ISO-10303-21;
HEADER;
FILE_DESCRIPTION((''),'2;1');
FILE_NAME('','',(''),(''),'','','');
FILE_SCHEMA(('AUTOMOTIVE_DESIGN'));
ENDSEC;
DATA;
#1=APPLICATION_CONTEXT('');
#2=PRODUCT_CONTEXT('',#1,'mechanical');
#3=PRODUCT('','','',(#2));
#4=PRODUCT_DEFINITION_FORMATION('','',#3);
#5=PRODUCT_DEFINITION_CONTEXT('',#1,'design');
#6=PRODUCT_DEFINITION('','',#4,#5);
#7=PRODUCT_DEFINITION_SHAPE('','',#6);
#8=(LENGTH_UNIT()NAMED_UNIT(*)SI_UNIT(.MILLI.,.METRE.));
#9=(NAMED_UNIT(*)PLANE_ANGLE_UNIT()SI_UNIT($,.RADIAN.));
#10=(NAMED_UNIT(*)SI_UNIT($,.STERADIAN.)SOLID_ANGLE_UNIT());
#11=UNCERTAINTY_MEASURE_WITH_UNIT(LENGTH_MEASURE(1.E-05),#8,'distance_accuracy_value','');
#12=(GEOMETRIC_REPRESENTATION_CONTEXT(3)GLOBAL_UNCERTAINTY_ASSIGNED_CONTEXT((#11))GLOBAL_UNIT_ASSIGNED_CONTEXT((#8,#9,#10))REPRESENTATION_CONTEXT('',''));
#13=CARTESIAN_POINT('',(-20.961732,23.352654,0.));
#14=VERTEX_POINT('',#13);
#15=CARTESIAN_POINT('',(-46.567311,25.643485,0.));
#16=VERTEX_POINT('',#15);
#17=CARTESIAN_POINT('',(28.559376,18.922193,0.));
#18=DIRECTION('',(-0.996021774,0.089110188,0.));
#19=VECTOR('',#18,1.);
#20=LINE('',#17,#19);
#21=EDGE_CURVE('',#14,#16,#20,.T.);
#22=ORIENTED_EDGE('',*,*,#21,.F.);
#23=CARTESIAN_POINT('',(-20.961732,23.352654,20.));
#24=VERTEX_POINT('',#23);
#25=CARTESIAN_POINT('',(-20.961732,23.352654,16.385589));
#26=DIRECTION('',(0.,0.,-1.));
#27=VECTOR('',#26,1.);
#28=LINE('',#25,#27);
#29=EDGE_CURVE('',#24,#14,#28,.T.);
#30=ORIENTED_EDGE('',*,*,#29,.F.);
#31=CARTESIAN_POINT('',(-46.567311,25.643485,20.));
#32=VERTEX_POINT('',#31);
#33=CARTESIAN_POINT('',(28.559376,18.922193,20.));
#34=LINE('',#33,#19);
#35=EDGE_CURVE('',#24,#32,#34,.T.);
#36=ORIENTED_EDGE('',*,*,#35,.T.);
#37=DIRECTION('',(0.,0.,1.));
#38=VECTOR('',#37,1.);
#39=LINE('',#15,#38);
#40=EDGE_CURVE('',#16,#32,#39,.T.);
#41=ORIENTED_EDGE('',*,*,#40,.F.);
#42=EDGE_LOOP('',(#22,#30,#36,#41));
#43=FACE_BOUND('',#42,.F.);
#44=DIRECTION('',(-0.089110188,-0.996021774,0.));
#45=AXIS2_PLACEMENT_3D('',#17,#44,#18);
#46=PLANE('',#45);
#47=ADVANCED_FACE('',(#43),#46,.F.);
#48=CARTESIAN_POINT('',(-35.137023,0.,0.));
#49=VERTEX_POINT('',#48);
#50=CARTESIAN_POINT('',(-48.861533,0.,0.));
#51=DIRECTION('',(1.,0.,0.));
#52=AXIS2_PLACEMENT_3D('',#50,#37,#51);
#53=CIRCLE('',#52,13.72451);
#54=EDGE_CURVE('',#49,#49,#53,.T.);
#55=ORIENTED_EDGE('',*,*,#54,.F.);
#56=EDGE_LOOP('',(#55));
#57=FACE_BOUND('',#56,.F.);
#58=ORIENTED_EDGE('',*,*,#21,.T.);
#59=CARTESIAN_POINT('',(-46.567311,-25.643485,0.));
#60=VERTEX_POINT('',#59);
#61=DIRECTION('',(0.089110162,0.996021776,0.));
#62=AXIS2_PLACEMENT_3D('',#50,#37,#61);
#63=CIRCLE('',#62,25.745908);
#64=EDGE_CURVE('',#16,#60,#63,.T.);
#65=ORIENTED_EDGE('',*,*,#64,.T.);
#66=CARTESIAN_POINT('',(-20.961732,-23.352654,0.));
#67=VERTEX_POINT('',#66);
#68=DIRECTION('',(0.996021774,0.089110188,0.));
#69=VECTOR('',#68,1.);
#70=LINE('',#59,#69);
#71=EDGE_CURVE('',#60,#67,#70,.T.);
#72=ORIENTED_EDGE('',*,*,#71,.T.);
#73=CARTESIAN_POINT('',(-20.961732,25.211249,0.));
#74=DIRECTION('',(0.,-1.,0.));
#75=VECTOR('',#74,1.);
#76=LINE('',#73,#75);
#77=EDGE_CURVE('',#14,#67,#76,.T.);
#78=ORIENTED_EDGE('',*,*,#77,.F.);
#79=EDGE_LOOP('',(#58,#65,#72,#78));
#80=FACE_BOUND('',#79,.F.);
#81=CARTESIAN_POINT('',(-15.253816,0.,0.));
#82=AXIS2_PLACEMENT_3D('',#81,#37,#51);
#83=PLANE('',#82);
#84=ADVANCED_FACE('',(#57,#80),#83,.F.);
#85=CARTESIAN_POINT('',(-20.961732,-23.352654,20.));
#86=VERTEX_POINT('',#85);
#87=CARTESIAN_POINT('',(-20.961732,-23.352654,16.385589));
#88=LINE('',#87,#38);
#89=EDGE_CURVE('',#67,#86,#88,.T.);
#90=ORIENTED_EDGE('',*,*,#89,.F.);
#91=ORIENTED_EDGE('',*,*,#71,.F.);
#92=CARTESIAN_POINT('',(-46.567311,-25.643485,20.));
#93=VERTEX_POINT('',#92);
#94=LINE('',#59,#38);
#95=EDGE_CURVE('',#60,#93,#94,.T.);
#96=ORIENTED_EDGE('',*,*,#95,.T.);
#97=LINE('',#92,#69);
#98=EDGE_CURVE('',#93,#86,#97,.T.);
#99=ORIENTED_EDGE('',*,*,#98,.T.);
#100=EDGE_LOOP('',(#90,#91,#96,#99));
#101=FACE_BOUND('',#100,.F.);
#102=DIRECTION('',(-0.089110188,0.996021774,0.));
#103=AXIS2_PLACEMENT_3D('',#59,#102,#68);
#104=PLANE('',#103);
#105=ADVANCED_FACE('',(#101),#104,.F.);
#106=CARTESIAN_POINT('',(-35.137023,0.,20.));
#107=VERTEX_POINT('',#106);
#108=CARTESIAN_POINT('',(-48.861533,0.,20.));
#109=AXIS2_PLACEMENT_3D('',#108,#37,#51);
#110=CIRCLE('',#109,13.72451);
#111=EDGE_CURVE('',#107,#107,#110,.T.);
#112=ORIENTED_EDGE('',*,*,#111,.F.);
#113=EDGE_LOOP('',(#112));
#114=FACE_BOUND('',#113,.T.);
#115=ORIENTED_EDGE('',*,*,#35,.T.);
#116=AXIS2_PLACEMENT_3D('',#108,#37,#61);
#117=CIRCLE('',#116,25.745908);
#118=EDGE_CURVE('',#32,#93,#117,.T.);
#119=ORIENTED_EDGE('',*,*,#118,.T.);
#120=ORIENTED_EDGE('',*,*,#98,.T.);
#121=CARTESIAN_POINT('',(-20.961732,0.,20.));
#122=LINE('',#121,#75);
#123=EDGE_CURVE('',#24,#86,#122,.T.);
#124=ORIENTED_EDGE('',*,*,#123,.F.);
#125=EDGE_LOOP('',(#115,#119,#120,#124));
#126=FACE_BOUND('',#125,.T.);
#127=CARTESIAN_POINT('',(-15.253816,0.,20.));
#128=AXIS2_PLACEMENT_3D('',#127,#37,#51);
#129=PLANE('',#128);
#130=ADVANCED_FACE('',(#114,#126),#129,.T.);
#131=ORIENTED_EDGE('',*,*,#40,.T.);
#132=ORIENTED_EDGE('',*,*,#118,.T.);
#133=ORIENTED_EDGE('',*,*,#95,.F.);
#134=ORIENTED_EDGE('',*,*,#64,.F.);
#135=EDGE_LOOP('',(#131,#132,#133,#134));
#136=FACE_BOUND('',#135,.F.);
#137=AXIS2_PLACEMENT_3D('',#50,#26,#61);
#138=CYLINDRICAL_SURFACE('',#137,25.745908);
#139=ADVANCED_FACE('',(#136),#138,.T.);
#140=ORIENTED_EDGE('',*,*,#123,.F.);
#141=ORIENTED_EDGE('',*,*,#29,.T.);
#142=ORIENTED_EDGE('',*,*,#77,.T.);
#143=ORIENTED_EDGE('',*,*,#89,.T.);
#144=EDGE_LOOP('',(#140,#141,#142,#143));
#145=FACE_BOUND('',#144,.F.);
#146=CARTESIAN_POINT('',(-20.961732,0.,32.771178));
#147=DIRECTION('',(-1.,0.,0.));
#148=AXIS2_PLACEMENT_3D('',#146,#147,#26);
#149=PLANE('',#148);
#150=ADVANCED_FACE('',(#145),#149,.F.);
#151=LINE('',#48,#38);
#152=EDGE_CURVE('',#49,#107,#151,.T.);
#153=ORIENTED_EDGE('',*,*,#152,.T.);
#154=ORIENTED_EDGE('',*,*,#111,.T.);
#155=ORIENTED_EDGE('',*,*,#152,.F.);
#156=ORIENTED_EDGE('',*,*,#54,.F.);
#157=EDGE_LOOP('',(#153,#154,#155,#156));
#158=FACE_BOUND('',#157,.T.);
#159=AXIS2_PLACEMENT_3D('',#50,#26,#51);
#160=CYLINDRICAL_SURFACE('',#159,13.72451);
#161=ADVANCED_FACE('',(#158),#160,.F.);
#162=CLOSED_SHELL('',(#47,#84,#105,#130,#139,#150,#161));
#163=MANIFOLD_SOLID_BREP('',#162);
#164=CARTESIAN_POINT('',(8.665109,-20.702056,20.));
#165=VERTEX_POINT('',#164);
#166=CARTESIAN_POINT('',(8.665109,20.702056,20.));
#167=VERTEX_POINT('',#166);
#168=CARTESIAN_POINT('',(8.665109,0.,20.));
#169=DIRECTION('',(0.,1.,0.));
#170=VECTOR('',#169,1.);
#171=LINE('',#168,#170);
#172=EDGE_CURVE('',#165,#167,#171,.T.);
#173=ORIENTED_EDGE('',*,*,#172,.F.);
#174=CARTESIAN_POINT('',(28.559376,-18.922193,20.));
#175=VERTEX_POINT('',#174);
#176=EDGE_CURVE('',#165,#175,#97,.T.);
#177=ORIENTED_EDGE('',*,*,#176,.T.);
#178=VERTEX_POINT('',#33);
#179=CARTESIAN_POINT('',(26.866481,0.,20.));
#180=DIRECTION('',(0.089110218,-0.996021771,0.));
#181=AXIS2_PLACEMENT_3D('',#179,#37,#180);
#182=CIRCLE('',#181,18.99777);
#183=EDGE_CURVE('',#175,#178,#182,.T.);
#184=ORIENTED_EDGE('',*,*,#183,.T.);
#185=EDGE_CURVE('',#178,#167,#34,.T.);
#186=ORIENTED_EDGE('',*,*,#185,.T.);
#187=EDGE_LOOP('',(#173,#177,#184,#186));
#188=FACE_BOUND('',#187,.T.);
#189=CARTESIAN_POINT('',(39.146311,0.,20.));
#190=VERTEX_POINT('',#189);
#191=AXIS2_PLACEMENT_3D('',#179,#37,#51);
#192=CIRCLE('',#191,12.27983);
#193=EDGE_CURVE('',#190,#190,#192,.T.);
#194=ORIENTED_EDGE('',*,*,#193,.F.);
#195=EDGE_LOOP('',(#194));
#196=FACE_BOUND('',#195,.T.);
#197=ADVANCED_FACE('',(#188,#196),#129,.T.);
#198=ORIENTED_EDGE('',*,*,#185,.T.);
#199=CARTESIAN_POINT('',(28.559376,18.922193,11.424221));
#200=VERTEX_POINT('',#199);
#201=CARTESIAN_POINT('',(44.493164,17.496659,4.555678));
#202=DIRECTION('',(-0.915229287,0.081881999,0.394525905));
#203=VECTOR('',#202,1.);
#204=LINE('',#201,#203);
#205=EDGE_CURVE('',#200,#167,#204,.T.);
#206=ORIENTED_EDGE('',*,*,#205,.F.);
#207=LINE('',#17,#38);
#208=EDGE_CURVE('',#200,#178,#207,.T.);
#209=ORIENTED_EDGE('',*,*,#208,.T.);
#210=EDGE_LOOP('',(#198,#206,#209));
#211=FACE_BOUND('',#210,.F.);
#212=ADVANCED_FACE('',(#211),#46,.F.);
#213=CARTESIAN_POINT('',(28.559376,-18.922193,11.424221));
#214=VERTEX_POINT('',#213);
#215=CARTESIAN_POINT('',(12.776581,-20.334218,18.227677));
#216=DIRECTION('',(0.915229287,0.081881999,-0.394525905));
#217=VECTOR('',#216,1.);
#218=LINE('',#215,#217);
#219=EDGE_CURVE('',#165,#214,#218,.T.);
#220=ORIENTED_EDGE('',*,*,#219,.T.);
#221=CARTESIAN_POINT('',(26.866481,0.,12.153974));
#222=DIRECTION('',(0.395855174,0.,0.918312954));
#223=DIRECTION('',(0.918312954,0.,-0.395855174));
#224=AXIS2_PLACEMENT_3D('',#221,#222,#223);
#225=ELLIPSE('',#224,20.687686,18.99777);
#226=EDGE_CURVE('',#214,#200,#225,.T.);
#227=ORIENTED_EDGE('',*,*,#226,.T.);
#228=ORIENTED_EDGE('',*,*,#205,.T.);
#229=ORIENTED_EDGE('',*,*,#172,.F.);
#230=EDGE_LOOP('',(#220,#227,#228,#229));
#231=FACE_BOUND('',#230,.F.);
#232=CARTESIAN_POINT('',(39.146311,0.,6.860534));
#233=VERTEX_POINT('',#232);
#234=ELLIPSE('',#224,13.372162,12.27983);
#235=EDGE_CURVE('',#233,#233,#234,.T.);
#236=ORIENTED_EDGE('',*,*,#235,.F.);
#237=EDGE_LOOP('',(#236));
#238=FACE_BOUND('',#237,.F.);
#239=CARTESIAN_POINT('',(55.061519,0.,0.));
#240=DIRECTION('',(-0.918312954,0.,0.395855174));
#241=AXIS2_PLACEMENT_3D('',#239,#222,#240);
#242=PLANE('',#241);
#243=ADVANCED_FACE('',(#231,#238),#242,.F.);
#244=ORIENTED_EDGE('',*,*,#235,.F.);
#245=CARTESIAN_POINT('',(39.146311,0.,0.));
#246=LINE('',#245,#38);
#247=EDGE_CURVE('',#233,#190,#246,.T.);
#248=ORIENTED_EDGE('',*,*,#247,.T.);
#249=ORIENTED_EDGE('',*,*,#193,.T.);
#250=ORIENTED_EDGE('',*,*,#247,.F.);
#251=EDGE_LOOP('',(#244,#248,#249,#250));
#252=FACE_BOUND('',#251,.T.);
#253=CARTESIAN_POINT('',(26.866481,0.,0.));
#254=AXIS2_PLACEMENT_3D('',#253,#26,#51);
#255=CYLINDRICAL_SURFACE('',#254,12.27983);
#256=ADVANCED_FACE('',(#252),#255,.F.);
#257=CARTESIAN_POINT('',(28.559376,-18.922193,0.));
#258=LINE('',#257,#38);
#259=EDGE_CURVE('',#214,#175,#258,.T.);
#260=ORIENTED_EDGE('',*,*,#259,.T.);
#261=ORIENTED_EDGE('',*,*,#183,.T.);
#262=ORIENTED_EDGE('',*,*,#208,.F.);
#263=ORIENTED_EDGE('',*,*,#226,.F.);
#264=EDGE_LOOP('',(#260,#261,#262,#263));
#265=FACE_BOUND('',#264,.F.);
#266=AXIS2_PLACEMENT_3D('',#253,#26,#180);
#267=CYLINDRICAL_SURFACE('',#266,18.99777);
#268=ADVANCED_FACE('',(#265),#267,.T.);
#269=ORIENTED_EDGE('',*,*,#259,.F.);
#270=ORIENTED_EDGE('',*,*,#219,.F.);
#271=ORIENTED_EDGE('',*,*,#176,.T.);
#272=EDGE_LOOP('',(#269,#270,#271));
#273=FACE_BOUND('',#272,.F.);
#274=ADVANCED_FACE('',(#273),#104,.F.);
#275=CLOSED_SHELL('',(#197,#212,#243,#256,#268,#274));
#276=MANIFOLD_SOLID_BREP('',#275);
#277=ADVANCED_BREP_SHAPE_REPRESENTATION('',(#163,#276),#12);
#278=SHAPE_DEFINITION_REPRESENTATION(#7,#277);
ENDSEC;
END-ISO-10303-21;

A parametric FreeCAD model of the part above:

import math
import FreeCAD as App
import Part
import Sketcher
Q = App.Units.Quantity

doc = App.newDocument("Part")
body = doc.addObject("PartDesign::Body", "Body")
body.AllowCompound = True

# Sketch on XY plane
sketch1 = body.newObject("Sketcher::SketchObject", "Sketch")
sketch1.AttachmentSupport = (doc.getObject("XY_Plane"), [""])
sketch1.MapMode = "FlatFace"
sketch1.addGeometry([
    Part.LineSegment(App.Vector(-47, -26, 0), App.Vector(29, -19, 0)),  # 0
    Part.ArcOfCircle(Part.Circle(App.Vector(27, 0, 0), App.Vector(0, 0, 1), 19), math.radians(-85), math.radians(85)),  # 1
    Part.LineSegment(App.Vector(29, 19, 0), App.Vector(-47, 26, 0)),  # 2
    Part.ArcOfCircle(Part.Circle(App.Vector(-49, 0, 0), App.Vector(0, 0, 1), 26), math.radians(85), math.radians(275)),  # 3
    Part.Circle(App.Vector(-49, 0, 0), App.Vector(0, 0, 1), 14),  # 4
    Part.Circle(App.Vector(27, 0, 0), App.Vector(0, 0, 1), 12),  # 5
], False)
sketch1.addConstraint([
    Sketcher.Constraint("Tangent", 0, 2, 1, 1),
    Sketcher.Constraint("Tangent", 1, 2, 2, 1),
    Sketcher.Constraint("Tangent", 2, 2, 3, 1),
    Sketcher.Constraint("Tangent", 3, 2, 0, 1),
    Sketcher.Constraint("Coincident", 4, 3, 3, 3),
    Sketcher.Constraint("Coincident", 5, 3, 1, 3),
    Sketcher.Constraint("Symmetric", 0, 2, 1, 2, -1),
    Sketcher.Constraint("Diameter", 4, Q("27.44902 mm")),
    Sketcher.Constraint("Diameter", 5, Q("24.55966 mm")),
    Sketcher.Constraint("Radius", 1, Q("18.99777 mm")),
    Sketcher.Constraint("Radius", 3, Q("25.745908 mm")),
    Sketcher.Constraint("Distance", 0, Q("75.426752 mm")),
    Sketcher.Constraint("DistanceX", -1, 1, 1, 3, Q("26.866481 mm")),
])
pad1 = body.newObject("PartDesign::Pad", "Pad")
pad1.Profile = sketch1
pad1.Length = 20

# Sketch on XZ plane
sketch2 = body.newObject("Sketcher::SketchObject", "Sketch001")
sketch2.AttachmentSupport = (doc.getObject("XZ_Plane"), [""])
sketch2.MapMode = "FlatFace"
sketch2.addGeometry([
    Part.LineSegment(App.Vector(-21, 33, 0), App.Vector(-21, 0, 0)),
    Part.LineSegment(App.Vector(-21, 0, 0), App.Vector(55, 0, 0)),
    Part.LineSegment(App.Vector(55, 0, 0), App.Vector(-21, 33, 0)),
], False)
sketch2.addConstraint([
    Sketcher.Constraint("Coincident", 0, 2, 1, 1),
    Sketcher.Constraint("Coincident", 1, 2, 2, 1),
    Sketcher.Constraint("Coincident", 2, 2, 0, 1),
    Sketcher.Constraint("Vertical", 0),
    Sketcher.Constraint("Horizontal", 1),
    Sketcher.Constraint("PointOnObject", 0, 2, -1),
    Sketcher.Constraint("DistanceX", 1, 1, 1, 2, Q("76.023251 mm")),
    Sketcher.Constraint("DistanceY", 0, 2, 0, 1, Q("32.771178 mm")),
    Sketcher.Constraint("DistanceX", -1, 1, 1, 2, Q("55.061519 mm")),
])
pocket1 = body.newObject("PartDesign::Pocket", "Pocket")
pocket1.Profile = sketch2
pocket1.Length = 50.422498
pocket1.Midplane = True

doc.recompute()
